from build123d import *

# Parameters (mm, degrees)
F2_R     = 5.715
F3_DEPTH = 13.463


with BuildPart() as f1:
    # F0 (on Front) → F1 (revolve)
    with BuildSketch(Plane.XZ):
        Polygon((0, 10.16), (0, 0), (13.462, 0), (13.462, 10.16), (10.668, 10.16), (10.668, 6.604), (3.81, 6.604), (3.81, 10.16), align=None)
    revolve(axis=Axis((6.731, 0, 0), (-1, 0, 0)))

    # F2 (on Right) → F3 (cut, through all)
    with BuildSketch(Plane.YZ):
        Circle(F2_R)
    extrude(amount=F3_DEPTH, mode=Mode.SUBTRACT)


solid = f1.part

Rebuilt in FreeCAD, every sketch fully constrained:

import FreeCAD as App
import Part
import Sketcher
Q = App.Units.Quantity


def add_polygon(sketch, points):
    """Adds a closed chain of lines whose ends are joined by coincident constraints."""
    first, n = sketch.GeometryCount, len(points)
    for a, b in zip(points, points[1:] + points[:1]):
        sketch.addGeometry(Part.LineSegment(App.Vector(*a, 0), App.Vector(*b, 0)), False)
    for i in range(n):
        sketch.addConstraint(Sketcher.Constraint("Coincident", first + i, 2, first + (i + 1) % n, 1))

doc = App.newDocument("Part")
body = doc.addObject("PartDesign::Body", "Body")

sketch1 = doc.addObject("Sketcher::SketchObject", "Sketch")
body.addObject(sketch1)
sketch1.AttachmentSupport = (doc.XZ_Plane, [""])
sketch1.MapMode = "FlatFace"
add_polygon(sketch1, [(0, 10.2), (0, 0), (13.5, 0), (13.5, 10.2), (10.7, 10.2), (10.7, 6.6), (3.8, 6.6), (3.8, 10.2)])
sketch1.addConstraint(Sketcher.Constraint("Vertical", 0))
sketch1.addConstraint(Sketcher.Constraint("Horizontal", 1))
sketch1.addConstraint(Sketcher.Constraint("Vertical", 2))
sketch1.addConstraint(Sketcher.Constraint("Horizontal", 3))
sketch1.addConstraint(Sketcher.Constraint("Vertical", 4))
sketch1.addConstraint(Sketcher.Constraint("Horizontal", 5))
sketch1.addConstraint(Sketcher.Constraint("Vertical", 6))
sketch1.addConstraint(Sketcher.Constraint("Horizontal", 7))
sketch1.addConstraint(Sketcher.Constraint("Coincident", 0, 2, -1, 1))
sketch1.addConstraint(Sketcher.Constraint("Horizontal", 3, 2, 6, 2))
sketch1.addConstraint(Sketcher.Constraint("DistanceY", 0, 2, 0, 1, Q("0.4 in")))
sketch1.addConstraint(Sketcher.Constraint("DistanceX", 1, 1, 1, 2, Q("0.53 in")))
sketch1.addConstraint(Sketcher.Constraint("DistanceX", 3, 2, 3, 1, Q("0.11 in")))
sketch1.addConstraint(Sketcher.Constraint("DistanceX", 5, 2, 5, 1, Q("0.27 in")))
sketch1.addConstraint(Sketcher.Constraint("DistanceY", 4, 2, 4, 1, Q("0.14 in")))
revolution = doc.addObject("PartDesign::Revolution", "Revolution")
body.addObject(revolution)
revolution.Profile = sketch1
revolution.ReferenceAxis = (sketch1, ["H_Axis"])
revolution.Angle = 360

sketch2 = doc.addObject("Sketcher::SketchObject", "Sketch001")
body.addObject(sketch2)
sketch2.AttachmentSupport = (doc.YZ_Plane, [""])
sketch2.MapMode = "FlatFace"
sketch2.addGeometry(Part.Circle(App.Vector(0, 0, 0), App.Vector(0, 0, 1), 6), False)
sketch2.addConstraint(Sketcher.Constraint("Coincident", 0, 3, -1, 1))
sketch2.addConstraint(Sketcher.Constraint("Diameter", 0, Q("0.45 in")))
pocket1 = doc.addObject("PartDesign::Pocket", "Pocket")
body.addObject(pocket1)
pocket1.Profile = sketch2
pocket1.Type = "ThroughAll"
pocket1.Reversed = True

doc.recompute()
